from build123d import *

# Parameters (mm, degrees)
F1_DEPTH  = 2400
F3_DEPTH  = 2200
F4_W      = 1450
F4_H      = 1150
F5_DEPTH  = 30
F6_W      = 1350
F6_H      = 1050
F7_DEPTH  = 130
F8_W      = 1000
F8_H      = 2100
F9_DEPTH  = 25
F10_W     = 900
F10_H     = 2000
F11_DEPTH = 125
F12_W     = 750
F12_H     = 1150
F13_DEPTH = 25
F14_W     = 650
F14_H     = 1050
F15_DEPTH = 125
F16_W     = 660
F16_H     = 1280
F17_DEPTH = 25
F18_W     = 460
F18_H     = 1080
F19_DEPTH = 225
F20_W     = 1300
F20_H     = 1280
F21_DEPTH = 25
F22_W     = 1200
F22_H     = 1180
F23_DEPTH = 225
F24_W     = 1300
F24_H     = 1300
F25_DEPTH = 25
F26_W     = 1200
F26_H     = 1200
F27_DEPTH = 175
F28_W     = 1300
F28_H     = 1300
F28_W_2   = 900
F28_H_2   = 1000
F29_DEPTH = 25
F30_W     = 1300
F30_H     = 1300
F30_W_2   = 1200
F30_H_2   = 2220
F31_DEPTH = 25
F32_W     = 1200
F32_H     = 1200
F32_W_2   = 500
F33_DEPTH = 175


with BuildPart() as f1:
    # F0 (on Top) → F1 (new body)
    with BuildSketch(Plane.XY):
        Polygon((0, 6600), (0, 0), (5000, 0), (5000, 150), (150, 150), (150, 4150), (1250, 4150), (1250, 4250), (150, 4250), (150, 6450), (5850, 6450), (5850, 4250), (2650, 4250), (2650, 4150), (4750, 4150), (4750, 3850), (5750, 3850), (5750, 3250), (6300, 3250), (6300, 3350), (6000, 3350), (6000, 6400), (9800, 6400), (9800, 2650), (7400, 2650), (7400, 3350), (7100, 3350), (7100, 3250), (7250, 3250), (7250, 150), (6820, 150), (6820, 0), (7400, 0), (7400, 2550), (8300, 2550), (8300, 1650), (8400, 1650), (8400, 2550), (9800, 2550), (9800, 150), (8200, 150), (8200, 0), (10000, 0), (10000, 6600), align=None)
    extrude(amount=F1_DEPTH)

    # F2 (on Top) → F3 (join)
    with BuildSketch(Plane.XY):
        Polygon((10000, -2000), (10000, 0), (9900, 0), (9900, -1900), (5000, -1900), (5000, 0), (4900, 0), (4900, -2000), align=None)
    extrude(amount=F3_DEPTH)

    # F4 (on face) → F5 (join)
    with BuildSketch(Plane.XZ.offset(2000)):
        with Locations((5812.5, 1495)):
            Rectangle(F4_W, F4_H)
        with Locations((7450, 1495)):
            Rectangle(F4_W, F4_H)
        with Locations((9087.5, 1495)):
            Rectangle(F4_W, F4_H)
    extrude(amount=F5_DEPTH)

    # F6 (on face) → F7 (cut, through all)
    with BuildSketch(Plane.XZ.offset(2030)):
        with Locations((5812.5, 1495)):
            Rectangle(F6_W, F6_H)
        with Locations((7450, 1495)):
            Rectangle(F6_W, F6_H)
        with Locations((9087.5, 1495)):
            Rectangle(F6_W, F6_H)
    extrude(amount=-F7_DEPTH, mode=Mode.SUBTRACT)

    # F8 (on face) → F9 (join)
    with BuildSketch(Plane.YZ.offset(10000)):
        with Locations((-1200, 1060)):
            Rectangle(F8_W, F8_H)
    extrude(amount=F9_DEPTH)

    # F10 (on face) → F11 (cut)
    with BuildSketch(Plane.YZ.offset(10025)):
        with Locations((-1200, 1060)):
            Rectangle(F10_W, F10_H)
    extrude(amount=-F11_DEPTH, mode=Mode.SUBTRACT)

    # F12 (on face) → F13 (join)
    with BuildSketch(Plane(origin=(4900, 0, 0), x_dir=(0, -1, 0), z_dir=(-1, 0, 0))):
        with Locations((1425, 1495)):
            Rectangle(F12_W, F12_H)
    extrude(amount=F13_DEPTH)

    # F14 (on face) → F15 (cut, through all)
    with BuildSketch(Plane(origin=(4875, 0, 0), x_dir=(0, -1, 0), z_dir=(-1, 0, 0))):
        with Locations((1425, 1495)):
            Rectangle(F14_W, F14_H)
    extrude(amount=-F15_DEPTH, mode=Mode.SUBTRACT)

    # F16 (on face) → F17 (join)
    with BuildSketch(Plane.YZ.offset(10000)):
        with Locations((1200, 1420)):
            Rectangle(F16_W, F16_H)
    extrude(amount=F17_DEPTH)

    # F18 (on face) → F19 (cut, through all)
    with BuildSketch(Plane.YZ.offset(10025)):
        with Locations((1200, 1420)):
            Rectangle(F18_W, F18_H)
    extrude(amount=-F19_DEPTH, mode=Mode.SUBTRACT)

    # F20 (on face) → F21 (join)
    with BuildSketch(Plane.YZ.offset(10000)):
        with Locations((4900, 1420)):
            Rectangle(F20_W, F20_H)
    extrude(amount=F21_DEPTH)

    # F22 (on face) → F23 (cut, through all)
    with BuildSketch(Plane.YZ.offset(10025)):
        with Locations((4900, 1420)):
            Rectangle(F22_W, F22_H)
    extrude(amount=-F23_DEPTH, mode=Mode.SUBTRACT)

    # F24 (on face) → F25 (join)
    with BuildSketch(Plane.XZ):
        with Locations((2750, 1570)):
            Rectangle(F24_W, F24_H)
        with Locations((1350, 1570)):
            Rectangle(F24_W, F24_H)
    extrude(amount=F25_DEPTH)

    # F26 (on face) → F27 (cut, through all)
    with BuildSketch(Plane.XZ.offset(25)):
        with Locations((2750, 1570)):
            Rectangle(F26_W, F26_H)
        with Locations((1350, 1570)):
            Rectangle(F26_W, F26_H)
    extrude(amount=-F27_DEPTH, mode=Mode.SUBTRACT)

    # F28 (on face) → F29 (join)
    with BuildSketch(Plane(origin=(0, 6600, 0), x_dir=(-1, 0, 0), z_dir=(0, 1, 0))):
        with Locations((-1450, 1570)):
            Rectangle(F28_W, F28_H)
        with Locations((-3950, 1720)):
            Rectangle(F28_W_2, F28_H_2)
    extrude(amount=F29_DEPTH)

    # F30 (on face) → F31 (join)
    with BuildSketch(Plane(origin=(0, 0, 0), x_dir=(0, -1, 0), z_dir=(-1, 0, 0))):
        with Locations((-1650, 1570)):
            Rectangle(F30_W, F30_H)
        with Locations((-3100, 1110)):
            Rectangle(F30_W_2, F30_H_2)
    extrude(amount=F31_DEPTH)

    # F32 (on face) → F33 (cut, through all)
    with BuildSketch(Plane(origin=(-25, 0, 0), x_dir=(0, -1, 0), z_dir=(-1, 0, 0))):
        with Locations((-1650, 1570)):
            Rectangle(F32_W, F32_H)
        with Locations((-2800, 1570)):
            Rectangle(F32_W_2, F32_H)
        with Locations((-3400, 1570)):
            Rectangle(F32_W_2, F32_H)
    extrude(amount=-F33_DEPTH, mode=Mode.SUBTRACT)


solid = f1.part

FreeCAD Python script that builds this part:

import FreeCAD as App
import Part
import Sketcher

V = App.Vector

doc = App.newDocument("Part")
body = doc.addObject("PartDesign::Body", "Body")

# Sketch on XY plane
sketch1 = doc.addObject("Sketcher::SketchObject", "Sketch")
body.addObject(sketch1)
sketch1.AttachmentSupport = (doc.XY_Plane, [""])
sketch1.MapMode = "FlatFace"
sketch1.addGeometry(Part.LineSegment(V(0, 6600, 0), V(0, 0, 0)), False)
sketch1.addGeometry(Part.LineSegment(V(0, 0, 0), V(5000, 0, 0)), False)
sketch1.addGeometry(Part.LineSegment(V(5000, 0, 0), V(5000, 150, 0)), False)
sketch1.addGeometry(Part.LineSegment(V(5000, 150, 0), V(150, 150, 0)), False)
sketch1.addGeometry(Part.LineSegment(V(150, 150, 0), V(150, 4150, 0)), False)
sketch1.addGeometry(Part.LineSegment(V(150, 4150, 0), V(1250, 4150, 0)), False)
sketch1.addGeometry(Part.LineSegment(V(1250, 4150, 0), V(1250, 4250, 0)), False)
sketch1.addGeometry(Part.LineSegment(V(1250, 4250, 0), V(150, 4250, 0)), False)
sketch1.addGeometry(Part.LineSegment(V(150, 4250, 0), V(150, 6450, 0)), False)
sketch1.addGeometry(Part.LineSegment(V(150, 6450, 0), V(5850, 6450, 0)), False)
sketch1.addGeometry(Part.LineSegment(V(5850, 6450, 0), V(5850, 4250, 0)), False)
sketch1.addGeometry(Part.LineSegment(V(5850, 4250, 0), V(2650, 4250, 0)), False)
sketch1.addGeometry(Part.LineSegment(V(2650, 4250, 0), V(2650, 4150, 0)), False)
sketch1.addGeometry(Part.LineSegment(V(2650, 4150, 0), V(4750, 4150, 0)), False)
sketch1.addGeometry(Part.LineSegment(V(4750, 4150, 0), V(4750, 3850, 0)), False)
sketch1.addGeometry(Part.LineSegment(V(4750, 3850, 0), V(5750, 3850, 0)), False)
sketch1.addGeometry(Part.LineSegment(V(5750, 3850, 0), V(5750, 3250, 0)), False)
sketch1.addGeometry(Part.LineSegment(V(5750, 3250, 0), V(6300, 3250, 0)), False)
sketch1.addGeometry(Part.LineSegment(V(6300, 3250, 0), V(6300, 3350, 0)), False)
sketch1.addGeometry(Part.LineSegment(V(6300, 3350, 0), V(6000, 3350, 0)), False)
sketch1.addGeometry(Part.LineSegment(V(6000, 3350, 0), V(6000, 6400, 0)), False)
sketch1.addGeometry(Part.LineSegment(V(6000, 6400, 0), V(9800, 6400, 0)), False)
sketch1.addGeometry(Part.LineSegment(V(9800, 6400, 0), V(9800, 2650, 0)), False)
sketch1.addGeometry(Part.LineSegment(V(9800, 2650, 0), V(7400, 2650, 0)), False)
sketch1.addGeometry(Part.LineSegment(V(7400, 2650, 0), V(7400, 3350, 0)), False)
sketch1.addGeometry(Part.LineSegment(V(7400, 3350, 0), V(7100, 3350, 0)), False)
sketch1.addGeometry(Part.LineSegment(V(7100, 3350, 0), V(7100, 3250, 0)), False)
sketch1.addGeometry(Part.LineSegment(V(7100, 3250, 0), V(7250, 3250, 0)), False)
sketch1.addGeometry(Part.LineSegment(V(7250, 3250, 0), V(7250, 150, 0)), False)
sketch1.addGeometry(Part.LineSegment(V(7250, 150, 0), V(6820, 150, 0)), False)
sketch1.addGeometry(Part.LineSegment(V(6820, 150, 0), V(6820, 0, 0)), False)
sketch1.addGeometry(Part.LineSegment(V(6820, 0, 0), V(7400, 0, 0)), False)
sketch1.addGeometry(Part.LineSegment(V(7400, 0, 0), V(7400, 2550, 0)), False)
sketch1.addGeometry(Part.LineSegment(V(7400, 2550, 0), V(8300, 2550, 0)), False)
sketch1.addGeometry(Part.LineSegment(V(8300, 2550, 0), V(8300, 1650, 0)), False)
sketch1.addGeometry(Part.LineSegment(V(8300, 1650, 0), V(8400, 1650, 0)), False)
sketch1.addGeometry(Part.LineSegment(V(8400, 1650, 0), V(8400, 2550, 0)), False)
sketch1.addGeometry(Part.LineSegment(V(8400, 2550, 0), V(9800, 2550, 0)), False)
sketch1.addGeometry(Part.LineSegment(V(9800, 2550, 0), V(9800, 150, 0)), False)
sketch1.addGeometry(Part.LineSegment(V(9800, 150, 0), V(8200, 150, 0)), False)
sketch1.addGeometry(Part.LineSegment(V(8200, 150, 0), V(8200, 0, 0)), False)
sketch1.addGeometry(Part.LineSegment(V(8200, 0, 0), V(10000, 0, 0)), False)
sketch1.addGeometry(Part.LineSegment(V(10000, 0, 0), V(10000, 6600, 0)), False)
sketch1.addGeometry(Part.LineSegment(V(10000, 6600, 0), V(0, 6600, 0)), False)
sketch1.addConstraint(Sketcher.Constraint("Coincident", 0, 2, 1, 1))
sketch1.addConstraint(Sketcher.Constraint("Coincident", 1, 2, 2, 1))
sketch1.addConstraint(Sketcher.Constraint("Coincident", 2, 2, 3, 1))
sketch1.addConstraint(Sketcher.Constraint("Coincident", 3, 2, 4, 1))
sketch1.addConstraint(Sketcher.Constraint("Coincident", 4, 2, 5, 1))
sketch1.addConstraint(Sketcher.Constraint("Coincident", 5, 2, 6, 1))
sketch1.addConstraint(Sketcher.Constraint("Coincident", 6, 2, 7, 1))
sketch1.addConstraint(Sketcher.Constraint("Coincident", 7, 2, 8, 1))
sketch1.addConstraint(Sketcher.Constraint("Coincident", 8, 2, 9, 1))
sketch1.addConstraint(Sketcher.Constraint("Coincident", 9, 2, 10, 1))
sketch1.addConstraint(Sketcher.Constraint("Coincident", 10, 2, 11, 1))
sketch1.addConstraint(Sketcher.Constraint("Coincident", 11, 2, 12, 1))
sketch1.addConstraint(Sketcher.Constraint("Coincident", 12, 2, 13, 1))
sketch1.addConstraint(Sketcher.Constraint("Coincident", 13, 2, 14, 1))
sketch1.addConstraint(Sketcher.Constraint("Coincident", 14, 2, 15, 1))
sketch1.addConstraint(Sketcher.Constraint("Coincident", 15, 2, 16, 1))
sketch1.addConstraint(Sketcher.Constraint("Coincident", 16, 2, 17, 1))
sketch1.addConstraint(Sketcher.Constraint("Coincident", 17, 2, 18, 1))
sketch1.addConstraint(Sketcher.Constraint("Coincident", 18, 2, 19, 1))
sketch1.addConstraint(Sketcher.Constraint("Coincident", 19, 2, 20, 1))
sketch1.addConstraint(Sketcher.Constraint("Coincident", 20, 2, 21, 1))
sketch1.addConstraint(Sketcher.Constraint("Coincident", 21, 2, 22, 1))
sketch1.addConstraint(Sketcher.Constraint("Coincident", 22, 2, 23, 1))
sketch1.addConstraint(Sketcher.Constraint("Coincident", 23, 2, 24, 1))
sketch1.addConstraint(Sketcher.Constraint("Coincident", 24, 2, 25, 1))
sketch1.addConstraint(Sketcher.Constraint("Coincident", 25, 2, 26, 1))
sketch1.addConstraint(Sketcher.Constraint("Coincident", 26, 2, 27, 1))
sketch1.addConstraint(Sketcher.Constraint("Coincident", 27, 2, 28, 1))
sketch1.addConstraint(Sketcher.Constraint("Coincident", 28, 2, 29, 1))
sketch1.addConstraint(Sketcher.Constraint("Coincident", 29, 2, 30, 1))
sketch1.addConstraint(Sketcher.Constraint("Coincident", 30, 2, 31, 1))
sketch1.addConstraint(Sketcher.Constraint("Coincident", 31, 2, 32, 1))
sketch1.addConstraint(Sketcher.Constraint("Coincident", 32, 2, 33, 1))
sketch1.addConstraint(Sketcher.Constraint("Coincident", 33, 2, 34, 1))
sketch1.addConstraint(Sketcher.Constraint("Coincident", 34, 2, 35, 1))
sketch1.addConstraint(Sketcher.Constraint("Coincident", 35, 2, 36, 1))
sketch1.addConstraint(Sketcher.Constraint("Coincident", 36, 2, 37, 1))
sketch1.addConstraint(Sketcher.Constraint("Coincident", 37, 2, 38, 1))
sketch1.addConstraint(Sketcher.Constraint("Coincident", 38, 2, 39, 1))
sketch1.addConstraint(Sketcher.Constraint("Coincident", 39, 2, 40, 1))
sketch1.addConstraint(Sketcher.Constraint("Coincident", 40, 2, 41, 1))
sketch1.addConstraint(Sketcher.Constraint("Coincident", 41, 2, 42, 1))
sketch1.addConstraint(Sketcher.Constraint("Coincident", 42, 2, 43, 1))
sketch1.addConstraint(Sketcher.Constraint("Coincident", 43, 2, 0, 1))
sketch1.addConstraint(Sketcher.Constraint("Vertical", 0))
sketch1.addConstraint(Sketcher.Constraint("Horizontal", 1))
sketch1.addConstraint(Sketcher.Constraint("Vertical", 2))
sketch1.addConstraint(Sketcher.Constraint("Horizontal", 3))
sketch1.addConstraint(Sketcher.Constraint("Vertical", 4))
sketch1.addConstraint(Sketcher.Constraint("Horizontal", 5))
sketch1.addConstraint(Sketcher.Constraint("Vertical", 6))
sketch1.addConstraint(Sketcher.Constraint("Horizontal", 7))
sketch1.addConstraint(Sketcher.Constraint("Vertical", 8))
sketch1.addConstraint(Sketcher.Constraint("Horizontal", 9))
sketch1.addConstraint(Sketcher.Constraint("Vertical", 10))
sketch1.addConstraint(Sketcher.Constraint("Horizontal", 11))
sketch1.addConstraint(Sketcher.Constraint("Vertical", 12))
sketch1.addConstraint(Sketcher.Constraint("Horizontal", 13))
sketch1.addConstraint(Sketcher.Constraint("Vertical", 14))
sketch1.addConstraint(Sketcher.Constraint("Horizontal", 15))
sketch1.addConstraint(Sketcher.Constraint("Vertical", 16))
sketch1.addConstraint(Sketcher.Constraint("Horizontal", 17))
sketch1.addConstraint(Sketcher.Constraint("Vertical", 18))
sketch1.addConstraint(Sketcher.Constraint("Horizontal", 19))
sketch1.addConstraint(Sketcher.Constraint("Vertical", 20))
sketch1.addConstraint(Sketcher.Constraint("Horizontal", 21))
sketch1.addConstraint(Sketcher.Constraint("Vertical", 22))
sketch1.addConstraint(Sketcher.Constraint("Horizontal", 23))
sketch1.addConstraint(Sketcher.Constraint("Vertical", 24))
sketch1.addConstraint(Sketcher.Constraint("Horizontal", 25))
sketch1.addConstraint(Sketcher.Constraint("Vertical", 26))
sketch1.addConstraint(Sketcher.Constraint("Horizontal", 27))
sketch1.addConstraint(Sketcher.Constraint("Vertical", 28))
sketch1.addConstraint(Sketcher.Constraint("Horizontal", 29))
sketch1.addConstraint(Sketcher.Constraint("Vertical", 30))
sketch1.addConstraint(Sketcher.Constraint("Horizontal", 31))
sketch1.addConstraint(Sketcher.Constraint("Vertical", 32))
sketch1.addConstraint(Sketcher.Constraint("Horizontal", 33))
sketch1.addConstraint(Sketcher.Constraint("Vertical", 34))
sketch1.addConstraint(Sketcher.Constraint("Horizontal", 35))
sketch1.addConstraint(Sketcher.Constraint("Vertical", 36))
sketch1.addConstraint(Sketcher.Constraint("Horizontal", 37))
sketch1.addConstraint(Sketcher.Constraint("Vertical", 38))
sketch1.addConstraint(Sketcher.Constraint("Horizontal", 39))
sketch1.addConstraint(Sketcher.Constraint("Vertical", 40))
sketch1.addConstraint(Sketcher.Constraint("Horizontal", 41))
sketch1.addConstraint(Sketcher.Constraint("Vertical", 42))
sketch1.addConstraint(Sketcher.Constraint("Horizontal", 43))
sketch1.addConstraint(Sketcher.Constraint("Coincident", 0, 2, -1, 1))
sketch1.addConstraint(Sketcher.Constraint("PointOnObject", 30, 2, -1))
sketch1.addConstraint(Sketcher.Constraint("PointOnObject", 40, 2, -1))
sketch1.addConstraint(Sketcher.Constraint("Horizontal", 7, 2, 10, 2))
sketch1.addConstraint(Sketcher.Constraint("Horizontal", 5, 2, 12, 2))
sketch1.addConstraint(Sketcher.Constraint("Horizontal", 19, 2, 24, 2))
sketch1.addConstraint(Sketcher.Constraint("Horizontal", 17, 2, 26, 2))
sketch1.addConstraint(Sketcher.Constraint("Horizontal", 3, 2, 28, 2))
sketch1.addConstraint(Sketcher.Constraint("Horizontal", 33, 2, 36, 2))
sketch1.addConstraint(Sketcher.Constraint("Horizontal", 29, 2, 38, 2))
sketch1.addConstraint(Sketcher.Constraint("Vertical", 4, 2, 7, 2))
sketch1.addConstraint(Sketcher.Constraint("Vertical", 24, 2, 31, 2))
sketch1.addConstraint(Sketcher.Constraint("Vertical", 22, 2, 37, 2))
sketch1.addConstraint(Sketcher.Constraint("Equal", 19, 25))
sketch1.addConstraint(Sketcher.Constraint("Equal", 27, 2))
sketch1.addConstraint(Sketcher.Constraint("Equal", 35, 6))
sketch1.addConstraint(Sketcher.Constraint("Equal", 25, 14))
sketch1.addConstraint(Sketcher.Constraint("Equal", 12, 18))
sketch1.addConstraint(Sketcher.Constraint("Equal", 33, 34))
sketch1.addConstraint(Sketcher.Constraint("Equal", 23, 38))
sketch1.addConstraint(Sketcher.Constraint("DistanceX", 1, 1, 1, 2, 5000.0))
sketch1.addConstraint(Sketcher.Constraint("DistanceX", 3, 2, 3, 1, 4850.0))
sketch1.addConstraint(Sketcher.Constraint("DistanceX", 5, 1, 5, 2, 1100.0))
sketch1.addConstraint(Sketcher.Constraint("DistanceX", 9, 1, 9, 2, 5700.0))
sketch1.addConstraint(Sketcher.Constraint("DistanceX", 11, 2, 11, 1, 3200.0))
sketch1.addConstraint(Sketcher.Constraint("DistanceX", 13, 1, 13, 2, 2100.0))
sketch1.addConstraint(Sketcher.Constraint("DistanceX", 15, 1, 15, 2, 1000.0))
sketch1.addConstraint(Sketcher.Constraint("DistanceX", 17, 1, 17, 2, 550.0))
sketch1.addConstraint(Sketcher.Constraint("DistanceX", 19, 2, 19, 1, 300.0))
sketch1.addConstraint(Sketcher.Constraint("DistanceX", 21, 1, 21, 2, 3800.0))
sketch1.addConstraint(Sketcher.Constraint("DistanceX", 23, 2, 23, 1, 2400.0))
sketch1.addConstraint(Sketcher.Constraint("DistanceX", 27, 1, 27, 2, 150.0))
sketch1.addConstraint(Sketcher.Constraint("DistanceX", 29, 2, 29, 1, 430.0))
sketch1.addConstraint(Sketcher.Constraint("DistanceX", 33, 1, 33, 2, 900.0))
sketch1.addConstraint(Sketcher.Constraint("DistanceX", 35, 1, 35, 2, 100.0))
sketch1.addConstraint(Sketcher.Constraint("DistanceX", 39, 2, 39, 1, 1600.0))
sketch1.addConstraint(Sketcher.Constraint("DistanceX", 41, 1, 41, 2, 1800.0))
sketch1.addConstraint(Sketcher.Constraint("DistanceY", 0, 2, 0, 1, 6600.0))
sketch1.addConstraint(Sketcher.Constraint("DistanceY", 4, 1, 4, 2, 4000.0))
sketch1.addConstraint(Sketcher.Constraint("DistanceY", 8, 1, 8, 2, 2200.0))
sketch1.addConstraint(Sketcher.Constraint("DistanceY", 16, 2, 16, 1, 600.0))
sketch1.addConstraint(Sketcher.Constraint("DistanceY", 20, 1, 20, 2, 3050.0))
sketch1.addConstraint(Sketcher.Constraint("DistanceY", 22, 2, 22, 1, 3750.0))
pad1 = doc.addObject("PartDesign::Pad", "Pad")
body.addObject(pad1)
pad1.Profile = sketch1
pad1.Length = 2400

# Sketch on XY plane
sketch2 = doc.addObject("Sketcher::SketchObject", "Sketch001")
body.addObject(sketch2)
sketch2.AttachmentSupport = (doc.XY_Plane, [""])
sketch2.MapMode = "FlatFace"
sketch2.addGeometry(Part.LineSegment(V(10000, -2000, 0), V(10000, 0, 0)), False)
sketch2.addGeometry(Part.LineSegment(V(10000, 0, 0), V(9900, 0, 0)), False)
sketch2.addGeometry(Part.LineSegment(V(9900, 0, 0), V(9900, -1900, 0)), False)
sketch2.addGeometry(Part.LineSegment(V(9900, -1900, 0), V(5000, -1900, 0)), False)
sketch2.addGeometry(Part.LineSegment(V(5000, -1900, 0), V(5000, 0, 0)), False)
sketch2.addGeometry(Part.LineSegment(V(5000, 0, 0), V(4900, 0, 0)), False)
sketch2.addGeometry(Part.LineSegment(V(4900, 0, 0), V(4900, -2000, 0)), False)
sketch2.addGeometry(Part.LineSegment(V(4900, -2000, 0), V(10000, -2000, 0)), False)
sketch2.addConstraint(Sketcher.Constraint("Coincident", 0, 2, 1, 1))
sketch2.addConstraint(Sketcher.Constraint("Coincident", 1, 2, 2, 1))
sketch2.addConstraint(Sketcher.Constraint("Coincident", 2, 2, 3, 1))
sketch2.addConstraint(Sketcher.Constraint("Coincident", 3, 2, 4, 1))
sketch2.addConstraint(Sketcher.Constraint("Coincident", 4, 2, 5, 1))
sketch2.addConstraint(Sketcher.Constraint("Coincident", 5, 2, 6, 1))
sketch2.addConstraint(Sketcher.Constraint("Coincident", 6, 2, 7, 1))
sketch2.addConstraint(Sketcher.Constraint("Coincident", 7, 2, 0, 1))
sketch2.addConstraint(Sketcher.Constraint("Vertical", 0))
sketch2.addConstraint(Sketcher.Constraint("Horizontal", 1))
sketch2.addConstraint(Sketcher.Constraint("Vertical", 2))
sketch2.addConstraint(Sketcher.Constraint("Horizontal", 3))
sketch2.addConstraint(Sketcher.Constraint("Vertical", 4))
sketch2.addConstraint(Sketcher.Constraint("Horizontal", 5))
sketch2.addConstraint(Sketcher.Constraint("Vertical", 6))
sketch2.addConstraint(Sketcher.Constraint("Horizontal", 7))
sketch2.addConstraint(Sketcher.Constraint("PointOnObject", 0, 2, -1))
sketch2.addConstraint(Sketcher.Constraint("PointOnObject", 4, 2, -1))
sketch2.addConstraint(Sketcher.Constraint("Equal", 1, 5))
sketch2.addConstraint(Sketcher.Constraint("DistanceX", 1, 2, 1, 1, 100.0))
sketch2.addConstraint(Sketcher.Constraint("DistanceX", 3, 2, 3, 1, 4900.0))
sketch2.addConstraint(Sketcher.Constraint("DistanceY", 0, 1, 0, 2, 2000.0))
sketch2.addConstraint(Sketcher.Constraint("DistanceY", 2, 2, 2, 1, 1900.0))
sketch2.addConstraint(Sketcher.Constraint("DistanceX", -1, 1, 0, 2, 10000.0))
pad2 = doc.addObject("PartDesign::Pad", "Pad001")
body.addObject(pad2)
pad2.Profile = sketch2
pad2.Length = 2200

# Sketch on XZ plane
sketch3 = doc.addObject("Sketcher::SketchObject", "Sketch002")
body.addObject(sketch3)
sketch3.AttachmentSupport = (doc.XZ_Plane, [""])
sketch3.MapMode = "FlatFace"
sketch3.AttachmentOffset = App.Placement(V(0, 0, 2000), App.Rotation())
sketch3.addGeometry(Part.LineSegment(V(5087.5, 2070, 0), V(5087.5, 920, 0)), False)
sketch3.addGeometry(Part.LineSegment(V(5087.5, 920, 0), V(6537.5, 920, 0)), False)
sketch3.addGeometry(Part.LineSegment(V(6537.5, 920, 0), V(6537.5, 2070, 0)), False)
sketch3.addGeometry(Part.LineSegment(V(6537.5, 2070, 0), V(5087.5, 2070, 0)), False)
sketch3.addGeometry(Part.LineSegment(V(6725, 2070, 0), V(6725, 920, 0)), False)
sketch3.addGeometry(Part.LineSegment(V(6725, 920, 0), V(8175, 920, 0)), False)
sketch3.addGeometry(Part.LineSegment(V(8175, 920, 0), V(8175, 2070, 0)), False)
sketch3.addGeometry(Part.LineSegment(V(8175, 2070, 0), V(6725, 2070, 0)), False)
sketch3.addGeometry(Part.LineSegment(V(8362.5, 2070, 0), V(8362.5, 920, 0)), False)
sketch3.addGeometry(Part.LineSegment(V(8362.5, 920, 0), V(9812.5, 920, 0)), False)
sketch3.addGeometry(Part.LineSegment(V(9812.5, 920, 0), V(9812.5, 2070, 0)), False)
sketch3.addGeometry(Part.LineSegment(V(9812.5, 2070, 0), V(8362.5, 2070, 0)), False)
sketch3.addConstraint(Sketcher.Constraint("Coincident", 0, 2, 1, 1))
sketch3.addConstraint(Sketcher.Constraint("Coincident", 1, 2, 2, 1))
sketch3.addConstraint(Sketcher.Constraint("Coincident", 2, 2, 3, 1))
sketch3.addConstraint(Sketcher.Constraint("Coincident", 3, 2, 0, 1))
sketch3.addConstraint(Sketcher.Constraint("Coincident", 4, 2, 5, 1))
sketch3.addConstraint(Sketcher.Constraint("Coincident", 5, 2, 6, 1))
sketch3.addConstraint(Sketcher.Constraint("Coincident", 6, 2, 7, 1))
sketch3.addConstraint(Sketcher.Constraint("Coincident", 7, 2, 4, 1))
sketch3.addConstraint(Sketcher.Constraint("Coincident", 8, 2, 9, 1))
sketch3.addConstraint(Sketcher.Constraint("Coincident", 9, 2, 10, 1))
sketch3.addConstraint(Sketcher.Constraint("Coincident", 10, 2, 11, 1))
sketch3.addConstraint(Sketcher.Constraint("Coincident", 11, 2, 8, 1))
sketch3.addConstraint(Sketcher.Constraint("Vertical", 0))
sketch3.addConstraint(Sketcher.Constraint("Horizontal", 1))
sketch3.addConstraint(Sketcher.Constraint("Vertical", 2))
sketch3.addConstraint(Sketcher.Constraint("Horizontal", 3))
sketch3.addConstraint(Sketcher.Constraint("Vertical", 4))
sketch3.addConstraint(Sketcher.Constraint("Horizontal", 5))
sketch3.addConstraint(Sketcher.Constraint("Vertical", 6))
sketch3.addConstraint(Sketcher.Constraint("Horizontal", 7))
sketch3.addConstraint(Sketcher.Constraint("Vertical", 8))
sketch3.addConstraint(Sketcher.Constraint("Horizontal", 9))
sketch3.addConstraint(Sketcher.Constraint("Vertical", 10))
sketch3.addConstraint(Sketcher.Constraint("Horizontal", 11))
sketch3.addConstraint(Sketcher.Constraint("Horizontal", 1, 2, 4, 2))
sketch3.addConstraint(Sketcher.Constraint("Horizontal", 3, 2, 6, 2))
sketch3.addConstraint(Sketcher.Constraint("Horizontal", 5, 2, 8, 2))
sketch3.addConstraint(Sketcher.Constraint("Horizontal", 7, 2, 10, 2))
sketch3.addConstraint(Sketcher.Constraint("Equal", 3, 5))
sketch3.addConstraint(Sketcher.Constraint("Equal", 7, 9))
sketch3.addConstraint(Sketcher.Constraint("DistanceX", 1, 1, 1, 2, 1450.0))
sketch3.addConstraint(Sketcher.Constraint("DistanceY", 0, 2, 0, 1, 1150.0))
sketch3.addConstraint(Sketcher.Constraint("DistanceY", -1, 1, 0, 2, 920.0))
sketch3.addConstraint(Sketcher.Constraint("DistanceX", -1, 1, 4, 2, 6725.0))
sketch3.addConstraint(Sketcher.Constraint("DistanceX", 1, 2, 8, 2, 1825.0))
sketch3.addConstraint(Sketcher.Constraint("DistanceX", -1, 1, 0, 2, 5087.5))
pad3 = doc.addObject("PartDesign::Pad", "Pad002")
body.addObject(pad3)
pad3.Profile = sketch3
pad3.Length = 30

# Sketch on XZ plane
sketch4 = doc.addObject("Sketcher::SketchObject", "Sketch003")
body.addObject(sketch4)
sketch4.AttachmentSupport = (doc.XZ_Plane, [""])
sketch4.MapMode = "FlatFace"
sketch4.AttachmentOffset = App.Placement(V(0, 0, 2030), App.Rotation())
sketch4.addGeometry(Part.LineSegment(V(5137.5, 2020, 0), V(5137.5, 970, 0)), False)
sketch4.addGeometry(Part.LineSegment(V(5137.5, 970, 0), V(6487.5, 970, 0)), False)
sketch4.addGeometry(Part.LineSegment(V(6487.5, 970, 0), V(6487.5, 2020, 0)), False)
sketch4.addGeometry(Part.LineSegment(V(6487.5, 2020, 0), V(5137.5, 2020, 0)), False)
sketch4.addGeometry(Part.LineSegment(V(6775, 2020, 0), V(6775, 970, 0)), False)
sketch4.addGeometry(Part.LineSegment(V(6775, 970, 0), V(8125, 970, 0)), False)
sketch4.addGeometry(Part.LineSegment(V(8125, 970, 0), V(8125, 2020, 0)), False)
sketch4.addGeometry(Part.LineSegment(V(8125, 2020, 0), V(6775, 2020, 0)), False)
sketch4.addGeometry(Part.LineSegment(V(8412.5, 2020, 0), V(8412.5, 970, 0)), False)
sketch4.addGeometry(Part.LineSegment(V(8412.5, 970, 0), V(9762.5, 970, 0)), False)
sketch4.addGeometry(Part.LineSegment(V(9762.5, 970, 0), V(9762.5, 2020, 0)), False)
sketch4.addGeometry(Part.LineSegment(V(9762.5, 2020, 0), V(8412.5, 2020, 0)), False)
sketch4.addConstraint(Sketcher.Constraint("Coincident", 0, 2, 1, 1))
sketch4.addConstraint(Sketcher.Constraint("Coincident", 1, 2, 2, 1))
sketch4.addConstraint(Sketcher.Constraint("Coincident", 2, 2, 3, 1))
sketch4.addConstraint(Sketcher.Constraint("Coincident", 3, 2, 0, 1))
sketch4.addConstraint(Sketcher.Constraint("Coincident", 4, 2, 5, 1))
sketch4.addConstraint(Sketcher.Constraint("Coincident", 5, 2, 6, 1))
sketch4.addConstraint(Sketcher.Constraint("Coincident", 6, 2, 7, 1))
sketch4.addConstraint(Sketcher.Constraint("Coincident", 7, 2, 4, 1))
sketch4.addConstraint(Sketcher.Constraint("Coincident", 8, 2, 9, 1))
sketch4.addConstraint(Sketcher.Constraint("Coincident", 9, 2, 10, 1))
sketch4.addConstraint(Sketcher.Constraint("Coincident", 10, 2, 11, 1))
sketch4.addConstraint(Sketcher.Constraint("Coincident", 11, 2, 8, 1))
sketch4.addConstraint(Sketcher.Constraint("Vertical", 0))
sketch4.addConstraint(Sketcher.Constraint("Horizontal", 1))
sketch4.addConstraint(Sketcher.Constraint("Vertical", 2))
sketch4.addConstraint(Sketcher.Constraint("Horizontal", 3))
sketch4.addConstraint(Sketcher.Constraint("Vertical", 4))
sketch4.addConstraint(Sketcher.Constraint("Horizontal", 5))
sketch4.addConstraint(Sketcher.Constraint("Vertical", 6))
sketch4.addConstraint(Sketcher.Constraint("Horizontal", 7))
sketch4.addConstraint(Sketcher.Constraint("Vertical", 8))
sketch4.addConstraint(Sketcher.Constraint("Horizontal", 9))
sketch4.addConstraint(Sketcher.Constraint("Vertical", 10))
sketch4.addConstraint(Sketcher.Constraint("Horizontal", 11))
sketch4.addConstraint(Sketcher.Constraint("Horizontal", 1, 2, 4, 2))
sketch4.addConstraint(Sketcher.Constraint("Horizontal", 3, 2, 6, 2))
sketch4.addConstraint(Sketcher.Constraint("Horizontal", 5, 2, 8, 2))
sketch4.addConstraint(Sketcher.Constraint("Horizontal", 7, 2, 10, 2))
sketch4.addConstraint(Sketcher.Constraint("Equal", 3, 5))
sketch4.addConstraint(Sketcher.Constraint("Equal", 7, 9))
sketch4.addConstraint(Sketcher.Constraint("DistanceX", 1, 1, 1, 2, 1350.0))
sketch4.addConstraint(Sketcher.Constraint("DistanceY", 0, 2, 0, 1, 1050.0))
sketch4.addConstraint(Sketcher.Constraint("DistanceY", -1, 1, 0, 2, 970.0))
sketch4.addConstraint(Sketcher.Constraint("DistanceX", -1, 1, 4, 2, 6775.0))
sketch4.addConstraint(Sketcher.Constraint("DistanceX", 1, 2, 8, 2, 1925.0))
sketch4.addConstraint(Sketcher.Constraint("DistanceX", -1, 1, 0, 2, 5137.5))
pocket1 = doc.addObject("PartDesign::Pocket", "Pocket")
body.addObject(pocket1)
pocket1.Profile = sketch4
pocket1.Length = 130

# Sketch on YZ plane
sketch5 = doc.addObject("Sketcher::SketchObject", "Sketch004")
body.addObject(sketch5)
sketch5.AttachmentSupport = (doc.YZ_Plane, [""])
sketch5.MapMode = "FlatFace"
sketch5.AttachmentOffset = App.Placement(V(0, 0, 10000), App.Rotation())
sketch5.addGeometry(Part.LineSegment(V(-1700, 2110, 0), V(-1700, 10, 0)), False)
sketch5.addGeometry(Part.LineSegment(V(-1700, 10, 0), V(-700, 10, 0)), False)
sketch5.addGeometry(Part.LineSegment(V(-700, 10, 0), V(-700, 2110, 0)), False)
sketch5.addGeometry(Part.LineSegment(V(-700, 2110, 0), V(-1700, 2110, 0)), False)
sketch5.addConstraint(Sketcher.Constraint("Coincident", 0, 2, 1, 1))
sketch5.addConstraint(Sketcher.Constraint("Coincident", 1, 2, 2, 1))
sketch5.addConstraint(Sketcher.Constraint("Coincident", 2, 2, 3, 1))
sketch5.addConstraint(Sketcher.Constraint("Coincident", 3, 2, 0, 1))
sketch5.addConstraint(Sketcher.Constraint("Vertical", 0))
sketch5.addConstraint(Sketcher.Constraint("Horizontal", 1))
sketch5.addConstraint(Sketcher.Constraint("Vertical", 2))
sketch5.addConstraint(Sketcher.Constraint("Horizontal", 3))
sketch5.addConstraint(Sketcher.Constraint("DistanceX", 1, 1, 1, 2, 1000.0))
sketch5.addConstraint(Sketcher.Constraint("DistanceY", 0, 2, 0, 1, 2100.0))
sketch5.addConstraint(Sketcher.Constraint("DistanceX", 0, 2, -1, 1, 1700.0))
sketch5.addConstraint(Sketcher.Constraint("DistanceY", -1, 1, 0, 2, 10.0))
pad4 = doc.addObject("PartDesign::Pad", "Pad003")
body.addObject(pad4)
pad4.Profile = sketch5
pad4.Length = 25

# Sketch on YZ plane
sketch6 = doc.addObject("Sketcher::SketchObject", "Sketch005")
body.addObject(sketch6)
sketch6.AttachmentSupport = (doc.YZ_Plane, [""])
sketch6.MapMode = "FlatFace"
sketch6.AttachmentOffset = App.Placement(V(0, 0, 10025), App.Rotation())
sketch6.addGeometry(Part.LineSegment(V(-1650, 2060, 0), V(-1650, 60, 0)), False)
sketch6.addGeometry(Part.LineSegment(V(-1650, 60, 0), V(-750, 60, 0)), False)
sketch6.addGeometry(Part.LineSegment(V(-750, 60, 0), V(-750, 2060, 0)), False)
sketch6.addGeometry(Part.LineSegment(V(-750, 2060, 0), V(-1650, 2060, 0)), False)
sketch6.addConstraint(Sketcher.Constraint("Coincident", 0, 2, 1, 1))
sketch6.addConstraint(Sketcher.Constraint("Coincident", 1, 2, 2, 1))
sketch6.addConstraint(Sketcher.Constraint("Coincident", 2, 2, 3, 1))
sketch6.addConstraint(Sketcher.Constraint("Coincident", 3, 2, 0, 1))
sketch6.addConstraint(Sketcher.Constraint("Vertical", 0))
sketch6.addConstraint(Sketcher.Constraint("Horizontal", 1))
sketch6.addConstraint(Sketcher.Constraint("Vertical", 2))
sketch6.addConstraint(Sketcher.Constraint("Horizontal", 3))
sketch6.addConstraint(Sketcher.Constraint("DistanceX", 1, 1, 1, 2, 900.0))
sketch6.addConstraint(Sketcher.Constraint("DistanceY", 0, 2, 0, 1, 2000.0))
sketch6.addConstraint(Sketcher.Constraint("DistanceX", 0, 2, -1, 1, 1650.0))
sketch6.addConstraint(Sketcher.Constraint("DistanceY", -1, 1, 0, 2, 60.0))
pocket2 = doc.addObject("PartDesign::Pocket", "Pocket001")
body.addObject(pocket2)
pocket2.Profile = sketch6
pocket2.Length = 125

# Sketch on YZ plane
sketch7 = doc.addObject("Sketcher::SketchObject", "Sketch006")
body.addObject(sketch7)
sketch7.AttachmentSupport = (doc.YZ_Plane, [""])
sketch7.MapMode = "FlatFace"
sketch7.AttachmentOffset = App.Placement(V(0, 0, 4900), App.Rotation())
sketch7.addGeometry(Part.LineSegment(V(-1050, 2070, 0), V(-1050, 920, 0)), False)
sketch7.addGeometry(Part.LineSegment(V(-1050, 920, 0), V(-1800, 920, 0)), False)
sketch7.addGeometry(Part.LineSegment(V(-1800, 920, 0), V(-1800, 2070, 0)), False)
sketch7.addGeometry(Part.LineSegment(V(-1800, 2070, 0), V(-1050, 2070, 0)), False)
sketch7.addConstraint(Sketcher.Constraint("Coincident", 0, 2, 1, 1))
sketch7.addConstraint(Sketcher.Constraint("Coincident", 1, 2, 2, 1))
sketch7.addConstraint(Sketcher.Constraint("Coincident", 2, 2, 3, 1))
sketch7.addConstraint(Sketcher.Constraint("Coincident", 3, 2, 0, 1))
sketch7.addConstraint(Sketcher.Constraint("Vertical", 0))
sketch7.addConstraint(Sketcher.Constraint("Horizontal", 1))
sketch7.addConstraint(Sketcher.Constraint("Vertical", 2))
sketch7.addConstraint(Sketcher.Constraint("Horizontal", 3))
sketch7.addConstraint(Sketcher.Constraint("DistanceX", 1, 2, 1, 1, 750.0))
sketch7.addConstraint(Sketcher.Constraint("DistanceY", 0, 2, 0, 1, 1150.0))
sketch7.addConstraint(Sketcher.Constraint("DistanceX", 0, 2, -1, 1, 1050.0))
sketch7.addConstraint(Sketcher.Constraint("DistanceY", -1, 1, 0, 2, 920.0))
pad5 = doc.addObject("PartDesign::Pad", "Pad004")
body.addObject(pad5)
pad5.Profile = sketch7
pad5.Length = 25
pad5.Reversed = True

# Sketch on YZ plane
sketch8 = doc.addObject("Sketcher::SketchObject", "Sketch007")
body.addObject(sketch8)
sketch8.AttachmentSupport = (doc.YZ_Plane, [""])
sketch8.MapMode = "FlatFace"
sketch8.AttachmentOffset = App.Placement(V(0, 0, 4875), App.Rotation())
sketch8.addGeometry(Part.LineSegment(V(-1100, 2020, 0), V(-1100, 970, 0)), False)
sketch8.addGeometry(Part.LineSegment(V(-1100, 970, 0), V(-1750, 970, 0)), False)
sketch8.addGeometry(Part.LineSegment(V(-1750, 970, 0), V(-1750, 2020, 0)), False)
sketch8.addGeometry(Part.LineSegment(V(-1750, 2020, 0), V(-1100, 2020, 0)), False)
sketch8.addConstraint(Sketcher.Constraint("Coincident", 0, 2, 1, 1))
sketch8.addConstraint(Sketcher.Constraint("Coincident", 1, 2, 2, 1))
sketch8.addConstraint(Sketcher.Constraint("Coincident", 2, 2, 3, 1))
sketch8.addConstraint(Sketcher.Constraint("Coincident", 3, 2, 0, 1))
sketch8.addConstraint(Sketcher.Constraint("Vertical", 0))
sketch8.addConstraint(Sketcher.Constraint("Horizontal", 1))
sketch8.addConstraint(Sketcher.Constraint("Vertical", 2))
sketch8.addConstraint(Sketcher.Constraint("Horizontal", 3))
sketch8.addConstraint(Sketcher.Constraint("DistanceX", 1, 2, 1, 1, 650.0))
sketch8.addConstraint(Sketcher.Constraint("DistanceY", 0, 2, 0, 1, 1050.0))
sketch8.addConstraint(Sketcher.Constraint("DistanceX", 0, 2, -1, 1, 1100.0))
sketch8.addConstraint(Sketcher.Constraint("DistanceY", -1, 1, 0, 2, 970.0))
pocket3 = doc.addObject("PartDesign::Pocket", "Pocket002")
body.addObject(pocket3)
pocket3.Profile = sketch8
pocket3.Length = 125
pocket3.Reversed = True

# Sketch on YZ plane
sketch9 = doc.addObject("Sketcher::SketchObject", "Sketch008")
body.addObject(sketch9)
sketch9.AttachmentSupport = (doc.YZ_Plane, [""])
sketch9.MapMode = "FlatFace"
sketch9.AttachmentOffset = App.Placement(V(0, 0, 10000), App.Rotation())
sketch9.addGeometry(Part.LineSegment(V(870, 2060, 0), V(870, 780, 0)), False)
sketch9.addGeometry(Part.LineSegment(V(870, 780, 0), V(1530, 780, 0)), False)
sketch9.addGeometry(Part.LineSegment(V(1530, 780, 0), V(1530, 2060, 0)), False)
sketch9.addGeometry(Part.LineSegment(V(1530, 2060, 0), V(870, 2060, 0)), False)
sketch9.addConstraint(Sketcher.Constraint("Coincident", 0, 2, 1, 1))
sketch9.addConstraint(Sketcher.Constraint("Coincident", 1, 2, 2, 1))
sketch9.addConstraint(Sketcher.Constraint("Coincident", 2, 2, 3, 1))
sketch9.addConstraint(Sketcher.Constraint("Coincident", 3, 2, 0, 1))
sketch9.addConstraint(Sketcher.Constraint("Vertical", 0))
sketch9.addConstraint(Sketcher.Constraint("Horizontal", 1))
sketch9.addConstraint(Sketcher.Constraint("Vertical", 2))
sketch9.addConstraint(Sketcher.Constraint("Horizontal", 3))
sketch9.addConstraint(Sketcher.Constraint("DistanceX", 1, 1, 1, 2, 660.0))
sketch9.addConstraint(Sketcher.Constraint("DistanceY", 0, 2, 0, 1, 1280.0))
sketch9.addConstraint(Sketcher.Constraint("DistanceX", -1, 1, 0, 2, 870.0))
sketch9.addConstraint(Sketcher.Constraint("DistanceY", -1, 1, 0, 2, 780.0))
pad6 = doc.addObject("PartDesign::Pad", "Pad005")
body.addObject(pad6)
pad6.Profile = sketch9
pad6.Length = 25

# Sketch on YZ plane
sketch10 = doc.addObject("Sketcher::SketchObject", "Sketch009")
body.addObject(sketch10)
sketch10.AttachmentSupport = (doc.YZ_Plane, [""])
sketch10.MapMode = "FlatFace"
sketch10.AttachmentOffset = App.Placement(V(0, 0, 10025), App.Rotation())
sketch10.addGeometry(Part.LineSegment(V(970, 1960, 0), V(970, 880, 0)), False)
sketch10.addGeometry(Part.LineSegment(V(970, 880, 0), V(1430, 880, 0)), False)
sketch10.addGeometry(Part.LineSegment(V(1430, 880, 0), V(1430, 1960, 0)), False)
sketch10.addGeometry(Part.LineSegment(V(1430, 1960, 0), V(970, 1960, 0)), False)
sketch10.addConstraint(Sketcher.Constraint("Coincident", 0, 2, 1, 1))
sketch10.addConstraint(Sketcher.Constraint("Coincident", 1, 2, 2, 1))
sketch10.addConstraint(Sketcher.Constraint("Coincident", 2, 2, 3, 1))
sketch10.addConstraint(Sketcher.Constraint("Coincident", 3, 2, 0, 1))
sketch10.addConstraint(Sketcher.Constraint("Vertical", 0))
sketch10.addConstraint(Sketcher.Constraint("Horizontal", 1))
sketch10.addConstraint(Sketcher.Constraint("Vertical", 2))
sketch10.addConstraint(Sketcher.Constraint("Horizontal", 3))
sketch10.addConstraint(Sketcher.Constraint("DistanceX", 1, 1, 1, 2, 460.0))
sketch10.addConstraint(Sketcher.Constraint("DistanceY", 0, 2, 0, 1, 1080.0))
sketch10.addConstraint(Sketcher.Constraint("DistanceX", -1, 1, 0, 2, 970.0))
sketch10.addConstraint(Sketcher.Constraint("DistanceY", -1, 1, 0, 2, 880.0))
pocket4 = doc.addObject("PartDesign::Pocket", "Pocket003")
body.addObject(pocket4)
pocket4.Profile = sketch10
pocket4.Length = 225

# Sketch on YZ plane
sketch11 = doc.addObject("Sketcher::SketchObject", "Sketch010")
body.addObject(sketch11)
sketch11.AttachmentSupport = (doc.YZ_Plane, [""])
sketch11.MapMode = "FlatFace"
sketch11.AttachmentOffset = App.Placement(V(0, 0, 10000), App.Rotation())
sketch11.addGeometry(Part.LineSegment(V(4250, 2060, 0), V(4250, 780, 0)), False)
sketch11.addGeometry(Part.LineSegment(V(4250, 780, 0), V(5550, 780, 0)), False)
sketch11.addGeometry(Part.LineSegment(V(5550, 780, 0), V(5550, 2060, 0)), False)
sketch11.addGeometry(Part.LineSegment(V(5550, 2060, 0), V(4250, 2060, 0)), False)
sketch11.addConstraint(Sketcher.Constraint("Coincident", 0, 2, 1, 1))
sketch11.addConstraint(Sketcher.Constraint("Coincident", 1, 2, 2, 1))
sketch11.addConstraint(Sketcher.Constraint("Coincident", 2, 2, 3, 1))
sketch11.addConstraint(Sketcher.Constraint("Coincident", 3, 2, 0, 1))
sketch11.addConstraint(Sketcher.Constraint("Vertical", 0))
sketch11.addConstraint(Sketcher.Constraint("Horizontal", 1))
sketch11.addConstraint(Sketcher.Constraint("Vertical", 2))
sketch11.addConstraint(Sketcher.Constraint("Horizontal", 3))
sketch11.addConstraint(Sketcher.Constraint("DistanceX", 1, 1, 1, 2, 1300.0))
sketch11.addConstraint(Sketcher.Constraint("DistanceY", 0, 2, 0, 1, 1280.0))
sketch11.addConstraint(Sketcher.Constraint("DistanceX", -1, 1, 0, 2, 4250.0))
sketch11.addConstraint(Sketcher.Constraint("DistanceY", -1, 1, 0, 2, 780.0))
pad7 = doc.addObject("PartDesign::Pad", "Pad006")
body.addObject(pad7)
pad7.Profile = sketch11
pad7.Length = 25

# Sketch on YZ plane
sketch12 = doc.addObject("Sketcher::SketchObject", "Sketch011")
body.addObject(sketch12)
sketch12.AttachmentSupport = (doc.YZ_Plane, [""])
sketch12.MapMode = "FlatFace"
sketch12.AttachmentOffset = App.Placement(V(0, 0, 10025), App.Rotation())
sketch12.addGeometry(Part.LineSegment(V(4300, 2010, 0), V(4300, 830, 0)), False)
sketch12.addGeometry(Part.LineSegment(V(4300, 830, 0), V(5500, 830, 0)), False)
sketch12.addGeometry(Part.LineSegment(V(5500, 830, 0), V(5500, 2010, 0)), False)
sketch12.addGeometry(Part.LineSegment(V(5500, 2010, 0), V(4300, 2010, 0)), False)
sketch12.addConstraint(Sketcher.Constraint("Coincident", 0, 2, 1, 1))
sketch12.addConstraint(Sketcher.Constraint("Coincident", 1, 2, 2, 1))
sketch12.addConstraint(Sketcher.Constraint("Coincident", 2, 2, 3, 1))
sketch12.addConstraint(Sketcher.Constraint("Coincident", 3, 2, 0, 1))
sketch12.addConstraint(Sketcher.Constraint("Vertical", 0))
sketch12.addConstraint(Sketcher.Constraint("Horizontal", 1))
sketch12.addConstraint(Sketcher.Constraint("Vertical", 2))
sketch12.addConstraint(Sketcher.Constraint("Horizontal", 3))
sketch12.addConstraint(Sketcher.Constraint("DistanceX", 1, 1, 1, 2, 1200.0))
sketch12.addConstraint(Sketcher.Constraint("DistanceY", 0, 2, 0, 1, 1180.0))
sketch12.addConstraint(Sketcher.Constraint("DistanceX", -1, 1, 0, 2, 4300.0))
sketch12.addConstraint(Sketcher.Constraint("DistanceY", -1, 1, 0, 2, 830.0))
pocket5 = doc.addObject("PartDesign::Pocket", "Pocket004")
body.addObject(pocket5)
pocket5.Profile = sketch12
pocket5.Length = 225

# Sketch on XZ plane
sketch13 = doc.addObject("Sketcher::SketchObject", "Sketch012")
body.addObject(sketch13)
sketch13.AttachmentSupport = (doc.XZ_Plane, [""])
sketch13.MapMode = "FlatFace"
sketch13.addGeometry(Part.LineSegment(V(2100, 2220, 0), V(2100, 920, 0)), False)
sketch13.addGeometry(Part.LineSegment(V(2100, 920, 0), V(3400, 920, 0)), False)
sketch13.addGeometry(Part.LineSegment(V(3400, 920, 0), V(3400, 2220, 0)), False)
sketch13.addGeometry(Part.LineSegment(V(3400, 2220, 0), V(2100, 2220, 0)), False)
sketch13.addGeometry(Part.LineSegment(V(700, 2220, 0), V(700, 920, 0)), False)
sketch13.addGeometry(Part.LineSegment(V(700, 920, 0), V(2000, 920, 0)), False)
sketch13.addGeometry(Part.LineSegment(V(2000, 920, 0), V(2000, 2220, 0)), False)
sketch13.addGeometry(Part.LineSegment(V(2000, 2220, 0), V(700, 2220, 0)), False)
sketch13.addConstraint(Sketcher.Constraint("Coincident", 0, 2, 1, 1))
sketch13.addConstraint(Sketcher.Constraint("Coincident", 1, 2, 2, 1))
sketch13.addConstraint(Sketcher.Constraint("Coincident", 2, 2, 3, 1))
sketch13.addConstraint(Sketcher.Constraint("Coincident", 3, 2, 0, 1))
sketch13.addConstraint(Sketcher.Constraint("Coincident", 4, 2, 5, 1))
sketch13.addConstraint(Sketcher.Constraint("Coincident", 5, 2, 6, 1))
sketch13.addConstraint(Sketcher.Constraint("Coincident", 6, 2, 7, 1))
sketch13.addConstraint(Sketcher.Constraint("Coincident", 7, 2, 4, 1))
sketch13.addConstraint(Sketcher.Constraint("Vertical", 0))
sketch13.addConstraint(Sketcher.Constraint("Horizontal", 1))
sketch13.addConstraint(Sketcher.Constraint("Vertical", 2))
sketch13.addConstraint(Sketcher.Constraint("Horizontal", 3))
sketch13.addConstraint(Sketcher.Constraint("Vertical", 4))
sketch13.addConstraint(Sketcher.Constraint("Horizontal", 5))
sketch13.addConstraint(Sketcher.Constraint("Vertical", 6))
sketch13.addConstraint(Sketcher.Constraint("Horizontal", 7))
sketch13.addConstraint(Sketcher.Constraint("Horizontal", 1, 2, 4, 2))
sketch13.addConstraint(Sketcher.Constraint("Horizontal", 3, 2, 6, 2))
sketch13.addConstraint(Sketcher.Constraint("Equal", 3, 5))
sketch13.addConstraint(Sketcher.Constraint("Equal", 7, 0))
sketch13.addConstraint(Sketcher.Constraint("DistanceX", 1, 1, 1, 2, 1300.0))
sketch13.addConstraint(Sketcher.Constraint("DistanceX", -1, 1, 0, 2, 2100.0))
sketch13.addConstraint(Sketcher.Constraint("DistanceY", -1, 1, 0, 2, 920.0))
sketch13.addConstraint(Sketcher.Constraint("DistanceX", -1, 1, 4, 2, 700.0))
pad8 = doc.addObject("PartDesign::Pad", "Pad007")
body.addObject(pad8)
pad8.Profile = sketch13
pad8.Length = 25

# Sketch on XZ plane
sketch14 = doc.addObject("Sketcher::SketchObject", "Sketch013")
body.addObject(sketch14)
sketch14.AttachmentSupport = (doc.XZ_Plane, [""])
sketch14.MapMode = "FlatFace"
sketch14.AttachmentOffset = App.Placement(V(0, 0, 25), App.Rotation())
sketch14.addGeometry(Part.LineSegment(V(2150, 2170, 0), V(2150, 970, 0)), False)
sketch14.addGeometry(Part.LineSegment(V(2150, 970, 0), V(3350, 970, 0)), False)
sketch14.addGeometry(Part.LineSegment(V(3350, 970, 0), V(3350, 2170, 0)), False)
sketch14.addGeometry(Part.LineSegment(V(3350, 2170, 0), V(2150, 2170, 0)), False)
sketch14.addGeometry(Part.LineSegment(V(750, 2170, 0), V(750, 970, 0)), False)
sketch14.addGeometry(Part.LineSegment(V(750, 970, 0), V(1950, 970, 0)), False)
sketch14.addGeometry(Part.LineSegment(V(1950, 970, 0), V(1950, 2170, 0)), False)
sketch14.addGeometry(Part.LineSegment(V(1950, 2170, 0), V(750, 2170, 0)), False)
sketch14.addConstraint(Sketcher.Constraint("Coincident", 0, 2, 1, 1))
sketch14.addConstraint(Sketcher.Constraint("Coincident", 1, 2, 2, 1))
sketch14.addConstraint(Sketcher.Constraint("Coincident", 2, 2, 3, 1))
sketch14.addConstraint(Sketcher.Constraint("Coincident", 3, 2, 0, 1))
sketch14.addConstraint(Sketcher.Constraint("Coincident", 4, 2, 5, 1))
sketch14.addConstraint(Sketcher.Constraint("Coincident", 5, 2, 6, 1))
sketch14.addConstraint(Sketcher.Constraint("Coincident", 6, 2, 7, 1))
sketch14.addConstraint(Sketcher.Constraint("Coincident", 7, 2, 4, 1))
sketch14.addConstraint(Sketcher.Constraint("Vertical", 0))
sketch14.addConstraint(Sketcher.Constraint("Horizontal", 1))
sketch14.addConstraint(Sketcher.Constraint("Vertical", 2))
sketch14.addConstraint(Sketcher.Constraint("Horizontal", 3))
sketch14.addConstraint(Sketcher.Constraint("Vertical", 4))
sketch14.addConstraint(Sketcher.Constraint("Horizontal", 5))
sketch14.addConstraint(Sketcher.Constraint("Vertical", 6))
sketch14.addConstraint(Sketcher.Constraint("Horizontal", 7))
sketch14.addConstraint(Sketcher.Constraint("Horizontal", 1, 2, 4, 2))
sketch14.addConstraint(Sketcher.Constraint("Horizontal", 3, 2, 6, 2))
sketch14.addConstraint(Sketcher.Constraint("Equal", 3, 5))
sketch14.addConstraint(Sketcher.Constraint("Equal", 7, 0))
sketch14.addConstraint(Sketcher.Constraint("DistanceX", 1, 1, 1, 2, 1200.0))
sketch14.addConstraint(Sketcher.Constraint("DistanceX", -1, 1, 0, 2, 2150.0))
sketch14.addConstraint(Sketcher.Constraint("DistanceY", -1, 1, 0, 2, 970.0))
sketch14.addConstraint(Sketcher.Constraint("DistanceX", -1, 1, 4, 2, 750.0))
pocket6 = doc.addObject("PartDesign::Pocket", "Pocket005")
body.addObject(pocket6)
pocket6.Profile = sketch14
pocket6.Length = 175

# Sketch on XZ plane
sketch15 = doc.addObject("Sketcher::SketchObject", "Sketch014")
body.addObject(sketch15)
sketch15.AttachmentSupport = (doc.XZ_Plane, [""])
sketch15.MapMode = "FlatFace"
sketch15.AttachmentOffset = App.Placement(V(0, 0, -6600), App.Rotation())
sketch15.addGeometry(Part.LineSegment(V(2100, 2220, 0), V(2100, 920, 0)), False)
sketch15.addGeometry(Part.LineSegment(V(2100, 920, 0), V(800, 920, 0)), False)
sketch15.addGeometry(Part.LineSegment(V(800, 920, 0), V(800, 2220, 0)), False)
sketch15.addGeometry(Part.LineSegment(V(800, 2220, 0), V(2100, 2220, 0)), False)
sketch15.addGeometry(Part.LineSegment(V(4400, 2220, 0), V(4400, 1220, 0)), False)
sketch15.addGeometry(Part.LineSegment(V(4400, 1220, 0), V(3500, 1220, 0)), False)
sketch15.addGeometry(Part.LineSegment(V(3500, 1220, 0), V(3500, 2220, 0)), False)
sketch15.addGeometry(Part.LineSegment(V(3500, 2220, 0), V(4400, 2220, 0)), False)
sketch15.addConstraint(Sketcher.Constraint("Coincident", 0, 2, 1, 1))
sketch15.addConstraint(Sketcher.Constraint("Coincident", 1, 2, 2, 1))
sketch15.addConstraint(Sketcher.Constraint("Coincident", 2, 2, 3, 1))
sketch15.addConstraint(Sketcher.Constraint("Coincident", 3, 2, 0, 1))
sketch15.addConstraint(Sketcher.Constraint("Coincident", 4, 2, 5, 1))
sketch15.addConstraint(Sketcher.Constraint("Coincident", 5, 2, 6, 1))
sketch15.addConstraint(Sketcher.Constraint("Coincident", 6, 2, 7, 1))
sketch15.addConstraint(Sketcher.Constraint("Coincident", 7, 2, 4, 1))
sketch15.addConstraint(Sketcher.Constraint("Vertical", 0))
sketch15.addConstraint(Sketcher.Constraint("Horizontal", 1))
sketch15.addConstraint(Sketcher.Constraint("Vertical", 2))
sketch15.addConstraint(Sketcher.Constraint("Horizontal", 3))
sketch15.addConstraint(Sketcher.Constraint("Vertical", 4))
sketch15.addConstraint(Sketcher.Constraint("Horizontal", 5))
sketch15.addConstraint(Sketcher.Constraint("Vertical", 6))
sketch15.addConstraint(Sketcher.Constraint("Horizontal", 7))
sketch15.addConstraint(Sketcher.Constraint("Horizontal", 3, 2, 6, 2))
sketch15.addConstraint(Sketcher.Constraint("Equal", 3, 0))
sketch15.addConstraint(Sketcher.Constraint("DistanceX", 1, 2, 1, 1, 1300.0))
sketch15.addConstraint(Sketcher.Constraint("DistanceX", 5, 2, 5, 1, 900.0))
sketch15.addConstraint(Sketcher.Constraint("DistanceY", 4, 2, 4, 1, 1000.0))
sketch15.addConstraint(Sketcher.Constraint("DistanceX", -1, 1, 0, 2, 2100.0))
sketch15.addConstraint(Sketcher.Constraint("DistanceY", -1, 1, 0, 2, 920.0))
sketch15.addConstraint(Sketcher.Constraint("DistanceX", -1, 1, 4, 2, 4400.0))
pad9 = doc.addObject("PartDesign::Pad", "Pad008")
body.addObject(pad9)
pad9.Profile = sketch15
pad9.Length = 25
pad9.Reversed = True

# Sketch on YZ plane
sketch16 = doc.addObject("Sketcher::SketchObject", "Sketch015")
body.addObject(sketch16)
sketch16.AttachmentSupport = (doc.YZ_Plane, [""])
sketch16.MapMode = "FlatFace"
sketch16.addGeometry(Part.LineSegment(V(2300, 2220, 0), V(2300, 920, 0)), False)
sketch16.addGeometry(Part.LineSegment(V(2300, 920, 0), V(1000, 920, 0)), False)
sketch16.addGeometry(Part.LineSegment(V(1000, 920, 0), V(1000, 2220, 0)), False)
sketch16.addGeometry(Part.LineSegment(V(1000, 2220, 0), V(2300, 2220, 0)), False)
sketch16.addGeometry(Part.LineSegment(V(3700, 2220, 0), V(3700, 0, 0)), False)
sketch16.addGeometry(Part.LineSegment(V(3700, 0, 0), V(2500, 0, 0)), False)
sketch16.addGeometry(Part.LineSegment(V(2500, 0, 0), V(2500, 2220, 0)), False)
sketch16.addGeometry(Part.LineSegment(V(2500, 2220, 0), V(3700, 2220, 0)), False)
sketch16.addConstraint(Sketcher.Constraint("Coincident", 0, 2, 1, 1))
sketch16.addConstraint(Sketcher.Constraint("Coincident", 1, 2, 2, 1))
sketch16.addConstraint(Sketcher.Constraint("Coincident", 2, 2, 3, 1))
sketch16.addConstraint(Sketcher.Constraint("Coincident", 3, 2, 0, 1))
sketch16.addConstraint(Sketcher.Constraint("Coincident", 4, 2, 5, 1))
sketch16.addConstraint(Sketcher.Constraint("Coincident", 5, 2, 6, 1))
sketch16.addConstraint(Sketcher.Constraint("Coincident", 6, 2, 7, 1))
sketch16.addConstraint(Sketcher.Constraint("Coincident", 7, 2, 4, 1))
sketch16.addConstraint(Sketcher.Constraint("Vertical", 0))
sketch16.addConstraint(Sketcher.Constraint("Horizontal", 1))
sketch16.addConstraint(Sketcher.Constraint("Vertical", 2))
sketch16.addConstraint(Sketcher.Constraint("Horizontal", 3))
sketch16.addConstraint(Sketcher.Constraint("Vertical", 4))
sketch16.addConstraint(Sketcher.Constraint("Horizontal", 5))
sketch16.addConstraint(Sketcher.Constraint("Vertical", 6))
sketch16.addConstraint(Sketcher.Constraint("Horizontal", 7))
sketch16.addConstraint(Sketcher.Constraint("PointOnObject", 4, 2, -1))
sketch16.addConstraint(Sketcher.Constraint("Horizontal", 3, 2, 6, 2))
sketch16.addConstraint(Sketcher.Constraint("Equal", 3, 0))
sketch16.addConstraint(Sketcher.Constraint("DistanceX", 1, 2, 1, 1, 1300.0))
sketch16.addConstraint(Sketcher.Constraint("DistanceX", 5, 2, 5, 1, 1200.0))
sketch16.addConstraint(Sketcher.Constraint("DistanceY", 4, 2, 4, 1, 2220.0))
sketch16.addConstraint(Sketcher.Constraint("DistanceX", -1, 1, 0, 2, 2300.0))
sketch16.addConstraint(Sketcher.Constraint("DistanceX", -1, 1, 4, 2, 3700.0))
pad10 = doc.addObject("PartDesign::Pad", "Pad009")
body.addObject(pad10)
pad10.Profile = sketch16
pad10.Length = 25
pad10.Reversed = True

# Sketch on YZ plane
sketch17 = doc.addObject("Sketcher::SketchObject", "Sketch016")
body.addObject(sketch17)
sketch17.AttachmentSupport = (doc.YZ_Plane, [""])
sketch17.MapMode = "FlatFace"
sketch17.AttachmentOffset = App.Placement(V(0, 0, -25), App.Rotation())
sketch17.addGeometry(Part.LineSegment(V(2250, 2170, 0), V(2250, 970, 0)), False)
sketch17.addGeometry(Part.LineSegment(V(2250, 970, 0), V(1050, 970, 0)), False)
sketch17.addGeometry(Part.LineSegment(V(1050, 970, 0), V(1050, 2170, 0)), False)
sketch17.addGeometry(Part.LineSegment(V(1050, 2170, 0), V(2250, 2170, 0)), False)
sketch17.addGeometry(Part.LineSegment(V(3050, 2170, 0), V(3050, 970, 0)), False)
sketch17.addGeometry(Part.LineSegment(V(3050, 970, 0), V(2550, 970, 0)), False)
sketch17.addGeometry(Part.LineSegment(V(2550, 970, 0), V(2550, 2170, 0)), False)
sketch17.addGeometry(Part.LineSegment(V(2550, 2170, 0), V(3050, 2170, 0)), False)
sketch17.addGeometry(Part.LineSegment(V(3650, 2170, 0), V(3650, 970, 0)), False)
sketch17.addGeometry(Part.LineSegment(V(3650, 970, 0), V(3150, 970, 0)), False)
sketch17.addGeometry(Part.LineSegment(V(3150, 970, 0), V(3150, 2170, 0)), False)
sketch17.addGeometry(Part.LineSegment(V(3150, 2170, 0), V(3650, 2170, 0)), False)
sketch17.addConstraint(Sketcher.Constraint("Coincident", 0, 2, 1, 1))
sketch17.addConstraint(Sketcher.Constraint("Coincident", 1, 2, 2, 1))
sketch17.addConstraint(Sketcher.Constraint("Coincident", 2, 2, 3, 1))
sketch17.addConstraint(Sketcher.Constraint("Coincident", 3, 2, 0, 1))
sketch17.addConstraint(Sketcher.Constraint("Coincident", 4, 2, 5, 1))
sketch17.addConstraint(Sketcher.Constraint("Coincident", 5, 2, 6, 1))
sketch17.addConstraint(Sketcher.Constraint("Coincident", 6, 2, 7, 1))
sketch17.addConstraint(Sketcher.Constraint("Coincident", 7, 2, 4, 1))
sketch17.addConstraint(Sketcher.Constraint("Coincident", 8, 2, 9, 1))
sketch17.addConstraint(Sketcher.Constraint("Coincident", 9, 2, 10, 1))
sketch17.addConstraint(Sketcher.Constraint("Coincident", 10, 2, 11, 1))
sketch17.addConstraint(Sketcher.Constraint("Coincident", 11, 2, 8, 1))
sketch17.addConstraint(Sketcher.Constraint("Vertical", 0))
sketch17.addConstraint(Sketcher.Constraint("Horizontal", 1))
sketch17.addConstraint(Sketcher.Constraint("Vertical", 2))
sketch17.addConstraint(Sketcher.Constraint("Horizontal", 3))
sketch17.addConstraint(Sketcher.Constraint("Vertical", 4))
sketch17.addConstraint(Sketcher.Constraint("Horizontal", 5))
sketch17.addConstraint(Sketcher.Constraint("Vertical", 6))
sketch17.addConstraint(Sketcher.Constraint("Horizontal", 7))
sketch17.addConstraint(Sketcher.Constraint("Vertical", 8))
sketch17.addConstraint(Sketcher.Constraint("Horizontal", 9))
sketch17.addConstraint(Sketcher.Constraint("Vertical", 10))
sketch17.addConstraint(Sketcher.Constraint("Horizontal", 11))
sketch17.addConstraint(Sketcher.Constraint("Horizontal", 1, 2, 4, 2))
sketch17.addConstraint(Sketcher.Constraint("Horizontal", 3, 2, 6, 2))
sketch17.addConstraint(Sketcher.Constraint("Horizontal", 5, 2, 8, 2))
sketch17.addConstraint(Sketcher.Constraint("Horizontal", 7, 2, 10, 2))
sketch17.addConstraint(Sketcher.Constraint("Equal", 7, 9))
sketch17.addConstraint(Sketcher.Constraint("Equal", 3, 0))
sketch17.addConstraint(Sketcher.Constraint("DistanceX", 1, 2, 1, 1, 1200.0))
sketch17.addConstraint(Sketcher.Constraint("DistanceX", 5, 2, 5, 1, 500.0))
sketch17.addConstraint(Sketcher.Constraint("DistanceX", -1, 1, 0, 2, 2250.0))
sketch17.addConstraint(Sketcher.Constraint("DistanceY", -1, 1, 0, 2, 970.0))
sketch17.addConstraint(Sketcher.Constraint("DistanceX", -1, 1, 4, 2, 3050.0))
sketch17.addConstraint(Sketcher.Constraint("DistanceX", -1, 1, 8, 2, 3650.0))
pocket7 = doc.addObject("PartDesign::Pocket", "Pocket006")
body.addObject(pocket7)
pocket7.Profile = sketch17
pocket7.Length = 175
pocket7.Reversed = True

doc.recompute()
